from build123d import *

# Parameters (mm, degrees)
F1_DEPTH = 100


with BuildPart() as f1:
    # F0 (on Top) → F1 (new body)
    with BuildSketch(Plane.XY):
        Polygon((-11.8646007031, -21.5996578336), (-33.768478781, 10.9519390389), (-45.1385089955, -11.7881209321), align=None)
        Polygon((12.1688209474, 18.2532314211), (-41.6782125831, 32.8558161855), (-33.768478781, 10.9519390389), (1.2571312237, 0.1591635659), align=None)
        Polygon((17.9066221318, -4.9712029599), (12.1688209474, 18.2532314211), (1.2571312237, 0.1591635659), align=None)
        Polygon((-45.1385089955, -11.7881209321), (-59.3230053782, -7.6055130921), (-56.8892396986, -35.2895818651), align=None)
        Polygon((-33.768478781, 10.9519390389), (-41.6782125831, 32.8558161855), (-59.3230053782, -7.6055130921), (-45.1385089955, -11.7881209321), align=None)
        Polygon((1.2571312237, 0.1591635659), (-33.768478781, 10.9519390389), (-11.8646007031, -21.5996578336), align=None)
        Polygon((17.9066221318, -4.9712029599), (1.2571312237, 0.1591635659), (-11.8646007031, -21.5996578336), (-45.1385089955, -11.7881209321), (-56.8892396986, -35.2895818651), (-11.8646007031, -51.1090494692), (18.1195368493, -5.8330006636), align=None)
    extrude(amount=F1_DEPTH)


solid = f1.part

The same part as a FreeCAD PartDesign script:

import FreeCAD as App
import Part
import Sketcher
from FreeCAD import Vector
Q = App.Units.Quantity

doc = App.newDocument("Part")
body = doc.addObject("PartDesign::Body", "Body")

# Sketch on XY plane
sketch1 = body.newObject("Sketcher::SketchObject", "Sketch")
sketch1.AttachmentSupport = (doc.getObject("XY_Plane"), [""])
sketch1.MapMode = "FlatFace"
sketch1.addGeometry([
    Part.LineSegment(Vector(17.906622, -4.971203, 0), Vector(12.168821, 18.253231, 0)),  # 0
    Part.LineSegment(Vector(12.168821, 18.253231, 0), Vector(-41.678213, 32.855816, 0)),  # 1
    Part.LineSegment(Vector(-41.678213, 32.855816, 0), Vector(-59.323005, -7.605513, 0)),  # 2
    Part.LineSegment(Vector(-59.323005, -7.605513, 0), Vector(-56.88924, -35.289582, 0)),  # 3
    Part.LineSegment(Vector(-56.88924, -35.289582, 0), Vector(-11.864601, -51.109049, 0)),  # 4
    Part.LineSegment(Vector(-11.864601, -51.109049, 0), Vector(18.119537, -5.833001, 0)),  # 5
    Part.LineSegment(Vector(18.119537, -5.833001, 0), Vector(17.906622, -4.971203, 0)),  # 6
], False)
sketch1.addConstraint([
    Sketcher.Constraint("Coincident", 0, 2, 1, 1),
    Sketcher.Constraint("Coincident", 1, 2, 2, 1),
    Sketcher.Constraint("Coincident", 2, 2, 3, 1),
    Sketcher.Constraint("Coincident", 3, 2, 4, 1),
    Sketcher.Constraint("Coincident", 4, 2, 5, 1),
    Sketcher.Constraint("Coincident", 5, 2, 6, 1),
    Sketcher.Constraint("Coincident", 6, 2, 0, 1),
    Sketcher.Constraint("Parallel", 0, 6),
    Sketcher.Constraint("DistanceY", 5, 2, -1, 1, Q("5.833001 mm")),
    Sketcher.Constraint("DistanceX", 4, 2, -1, 1, Q("11.864601 mm")),
    Sketcher.Constraint("DistanceY", 3, 2, 1, 2, Q("68.145398 mm")),
    Sketcher.Constraint("DistanceX", 0, 2, 6, 2, Q("5.737801 mm")),
    Sketcher.Constraint("Distance", 1, Q("55.791921 mm")),
    Sketcher.Constraint("Distance", 2, Q("44.14134 mm")),
    Sketcher.Constraint("Distance", 3, Q("27.790842 mm")),
    Sketcher.Constraint("Distance", 5, Q("54.304411 mm")),
    Sketcher.Constraint("Distance", 6, Q("0.887709 mm")),
    Sketcher.Constraint("DistanceX", -1, 1, 0, 2, Q("12.168821 mm")),
    Sketcher.Constraint("DistanceY", -1, 1, 0, 2, Q("18.253231 mm")),
    Sketcher.Constraint("DistanceX", 3, 2, -1, 1, Q("56.88924 mm")),
    Sketcher.Constraint("DistanceY", 3, 2, -1, 1, Q("35.289582 mm")),
])
pad1 = body.newObject("PartDesign::Pad", "Pad")
pad1.Profile = sketch1
pad1.Length = 100

doc.recompute()
